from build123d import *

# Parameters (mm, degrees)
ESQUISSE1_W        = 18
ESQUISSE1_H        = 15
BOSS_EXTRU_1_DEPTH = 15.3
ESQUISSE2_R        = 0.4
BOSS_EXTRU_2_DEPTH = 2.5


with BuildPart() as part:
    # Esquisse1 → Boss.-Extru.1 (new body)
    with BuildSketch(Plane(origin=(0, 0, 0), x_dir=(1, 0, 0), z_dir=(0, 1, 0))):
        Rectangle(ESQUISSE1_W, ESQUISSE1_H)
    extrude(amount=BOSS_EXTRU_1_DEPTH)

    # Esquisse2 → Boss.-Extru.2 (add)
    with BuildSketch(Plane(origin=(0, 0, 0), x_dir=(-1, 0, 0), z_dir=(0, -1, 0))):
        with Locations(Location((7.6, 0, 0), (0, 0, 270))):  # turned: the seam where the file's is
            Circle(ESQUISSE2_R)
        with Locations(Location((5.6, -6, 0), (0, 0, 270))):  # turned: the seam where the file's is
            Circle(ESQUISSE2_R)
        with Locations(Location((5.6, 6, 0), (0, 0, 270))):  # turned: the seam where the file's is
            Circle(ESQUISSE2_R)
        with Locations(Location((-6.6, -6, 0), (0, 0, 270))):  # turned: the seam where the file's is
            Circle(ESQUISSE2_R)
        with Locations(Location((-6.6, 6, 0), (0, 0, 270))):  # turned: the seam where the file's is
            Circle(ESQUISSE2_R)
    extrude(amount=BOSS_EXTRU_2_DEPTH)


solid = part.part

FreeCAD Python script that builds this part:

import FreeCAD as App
import Part
import Sketcher
from FreeCAD import Vector


def add_polygon(sketch, points):
    """Adds a closed chain of lines whose ends are joined by coincident constraints."""
    first, n = sketch.GeometryCount, len(points)
    for a, b in zip(points, points[1:] + points[:1]):
        sketch.addGeometry(Part.LineSegment(App.Vector(*a, 0), App.Vector(*b, 0)), False)
    for i in range(n):
        sketch.addConstraint(Sketcher.Constraint("Coincident", first + i, 2, first + (i + 1) % n, 1))

doc = App.newDocument("Part")
body = doc.addObject("PartDesign::Body", "Body")

# Sketch on XZ plane
sketch1 = body.newObject("Sketcher::SketchObject", "Sketch")
sketch1.AttachmentSupport = (doc.getObject("XZ_Plane"), [""])
sketch1.MapMode = "FlatFace"
add_polygon(sketch1, [(-9, -7.5), (-9, 7.5), (9, 7.5), (9, -7.5)])  # lines 0-3
sketch1.addConstraint([
    Sketcher.Constraint("Vertical", 0),
    Sketcher.Constraint("Horizontal", 1),
    Sketcher.Constraint("Vertical", 2),
    Sketcher.Constraint("Horizontal", 3),
    Sketcher.Constraint("Symmetric", 0, 2, 2, 2, -1, 1),
    Sketcher.Constraint("DistanceX", 1, 1, 1, 2, 18.0),
    Sketcher.Constraint("DistanceY", 0, 1, 0, 2, 15.0),
])
pad1 = body.newObject("PartDesign::Pad", "Pad")
pad1.Profile = sketch1
pad1.Length = 15.3
pad1.Reversed = True

# Sketch on XZ plane
sketch2 = body.newObject("Sketcher::SketchObject", "Sketch001")
sketch2.AttachmentSupport = (doc.getObject("XZ_Plane"), [""])
sketch2.MapMode = "FlatFace"
sketch2.addGeometry([
    Part.Circle(Vector(-7.6, 0, 0), Vector(0, 0, 1), 0.4),  # 0
    Part.Circle(Vector(-5.6, 6, 0), Vector(0, 0, 1), 0.4),  # 1
    Part.Circle(Vector(-5.6, -6, 0), Vector(0, 0, 1), 0.4),  # 2
    Part.Circle(Vector(6.6, 6, 0), Vector(0, 0, 1), 0.4),  # 3
    Part.Circle(Vector(6.6, -6, 0), Vector(0, 0, 1), 0.4),  # 4
], False)
sketch2.addConstraint([
    Sketcher.Constraint("Equal", 0, 1),
    Sketcher.Constraint("Equal", 1, 2),
    Sketcher.Constraint("Equal", 2, 3),
    Sketcher.Constraint("Equal", 3, 4),
    Sketcher.Constraint("Symmetric", 1, 3, 2, 3, -1),
    Sketcher.Constraint("Symmetric", 3, 3, 4, 3, -1),
    Sketcher.Constraint("PointOnObject", 0, 3, -1),
    Sketcher.Constraint("Horizontal", 1, 3, 3, 3),
    Sketcher.Constraint("Diameter", 0, 0.8),
    Sketcher.Constraint("DistanceY", -1, 1, 1, 3, 6.0),
    Sketcher.Constraint("DistanceX", 0, 3, 1, 3, 2.0),
    Sketcher.Constraint("DistanceX", 0, 3, -1, 1, 7.6),
    Sketcher.Constraint("DistanceX", -1, 1, 3, 3, 6.6),
])
pad2 = body.newObject("PartDesign::Pad", "Pad001")
pad2.Profile = sketch2
pad2.Length = 2.5

doc.recompute()
